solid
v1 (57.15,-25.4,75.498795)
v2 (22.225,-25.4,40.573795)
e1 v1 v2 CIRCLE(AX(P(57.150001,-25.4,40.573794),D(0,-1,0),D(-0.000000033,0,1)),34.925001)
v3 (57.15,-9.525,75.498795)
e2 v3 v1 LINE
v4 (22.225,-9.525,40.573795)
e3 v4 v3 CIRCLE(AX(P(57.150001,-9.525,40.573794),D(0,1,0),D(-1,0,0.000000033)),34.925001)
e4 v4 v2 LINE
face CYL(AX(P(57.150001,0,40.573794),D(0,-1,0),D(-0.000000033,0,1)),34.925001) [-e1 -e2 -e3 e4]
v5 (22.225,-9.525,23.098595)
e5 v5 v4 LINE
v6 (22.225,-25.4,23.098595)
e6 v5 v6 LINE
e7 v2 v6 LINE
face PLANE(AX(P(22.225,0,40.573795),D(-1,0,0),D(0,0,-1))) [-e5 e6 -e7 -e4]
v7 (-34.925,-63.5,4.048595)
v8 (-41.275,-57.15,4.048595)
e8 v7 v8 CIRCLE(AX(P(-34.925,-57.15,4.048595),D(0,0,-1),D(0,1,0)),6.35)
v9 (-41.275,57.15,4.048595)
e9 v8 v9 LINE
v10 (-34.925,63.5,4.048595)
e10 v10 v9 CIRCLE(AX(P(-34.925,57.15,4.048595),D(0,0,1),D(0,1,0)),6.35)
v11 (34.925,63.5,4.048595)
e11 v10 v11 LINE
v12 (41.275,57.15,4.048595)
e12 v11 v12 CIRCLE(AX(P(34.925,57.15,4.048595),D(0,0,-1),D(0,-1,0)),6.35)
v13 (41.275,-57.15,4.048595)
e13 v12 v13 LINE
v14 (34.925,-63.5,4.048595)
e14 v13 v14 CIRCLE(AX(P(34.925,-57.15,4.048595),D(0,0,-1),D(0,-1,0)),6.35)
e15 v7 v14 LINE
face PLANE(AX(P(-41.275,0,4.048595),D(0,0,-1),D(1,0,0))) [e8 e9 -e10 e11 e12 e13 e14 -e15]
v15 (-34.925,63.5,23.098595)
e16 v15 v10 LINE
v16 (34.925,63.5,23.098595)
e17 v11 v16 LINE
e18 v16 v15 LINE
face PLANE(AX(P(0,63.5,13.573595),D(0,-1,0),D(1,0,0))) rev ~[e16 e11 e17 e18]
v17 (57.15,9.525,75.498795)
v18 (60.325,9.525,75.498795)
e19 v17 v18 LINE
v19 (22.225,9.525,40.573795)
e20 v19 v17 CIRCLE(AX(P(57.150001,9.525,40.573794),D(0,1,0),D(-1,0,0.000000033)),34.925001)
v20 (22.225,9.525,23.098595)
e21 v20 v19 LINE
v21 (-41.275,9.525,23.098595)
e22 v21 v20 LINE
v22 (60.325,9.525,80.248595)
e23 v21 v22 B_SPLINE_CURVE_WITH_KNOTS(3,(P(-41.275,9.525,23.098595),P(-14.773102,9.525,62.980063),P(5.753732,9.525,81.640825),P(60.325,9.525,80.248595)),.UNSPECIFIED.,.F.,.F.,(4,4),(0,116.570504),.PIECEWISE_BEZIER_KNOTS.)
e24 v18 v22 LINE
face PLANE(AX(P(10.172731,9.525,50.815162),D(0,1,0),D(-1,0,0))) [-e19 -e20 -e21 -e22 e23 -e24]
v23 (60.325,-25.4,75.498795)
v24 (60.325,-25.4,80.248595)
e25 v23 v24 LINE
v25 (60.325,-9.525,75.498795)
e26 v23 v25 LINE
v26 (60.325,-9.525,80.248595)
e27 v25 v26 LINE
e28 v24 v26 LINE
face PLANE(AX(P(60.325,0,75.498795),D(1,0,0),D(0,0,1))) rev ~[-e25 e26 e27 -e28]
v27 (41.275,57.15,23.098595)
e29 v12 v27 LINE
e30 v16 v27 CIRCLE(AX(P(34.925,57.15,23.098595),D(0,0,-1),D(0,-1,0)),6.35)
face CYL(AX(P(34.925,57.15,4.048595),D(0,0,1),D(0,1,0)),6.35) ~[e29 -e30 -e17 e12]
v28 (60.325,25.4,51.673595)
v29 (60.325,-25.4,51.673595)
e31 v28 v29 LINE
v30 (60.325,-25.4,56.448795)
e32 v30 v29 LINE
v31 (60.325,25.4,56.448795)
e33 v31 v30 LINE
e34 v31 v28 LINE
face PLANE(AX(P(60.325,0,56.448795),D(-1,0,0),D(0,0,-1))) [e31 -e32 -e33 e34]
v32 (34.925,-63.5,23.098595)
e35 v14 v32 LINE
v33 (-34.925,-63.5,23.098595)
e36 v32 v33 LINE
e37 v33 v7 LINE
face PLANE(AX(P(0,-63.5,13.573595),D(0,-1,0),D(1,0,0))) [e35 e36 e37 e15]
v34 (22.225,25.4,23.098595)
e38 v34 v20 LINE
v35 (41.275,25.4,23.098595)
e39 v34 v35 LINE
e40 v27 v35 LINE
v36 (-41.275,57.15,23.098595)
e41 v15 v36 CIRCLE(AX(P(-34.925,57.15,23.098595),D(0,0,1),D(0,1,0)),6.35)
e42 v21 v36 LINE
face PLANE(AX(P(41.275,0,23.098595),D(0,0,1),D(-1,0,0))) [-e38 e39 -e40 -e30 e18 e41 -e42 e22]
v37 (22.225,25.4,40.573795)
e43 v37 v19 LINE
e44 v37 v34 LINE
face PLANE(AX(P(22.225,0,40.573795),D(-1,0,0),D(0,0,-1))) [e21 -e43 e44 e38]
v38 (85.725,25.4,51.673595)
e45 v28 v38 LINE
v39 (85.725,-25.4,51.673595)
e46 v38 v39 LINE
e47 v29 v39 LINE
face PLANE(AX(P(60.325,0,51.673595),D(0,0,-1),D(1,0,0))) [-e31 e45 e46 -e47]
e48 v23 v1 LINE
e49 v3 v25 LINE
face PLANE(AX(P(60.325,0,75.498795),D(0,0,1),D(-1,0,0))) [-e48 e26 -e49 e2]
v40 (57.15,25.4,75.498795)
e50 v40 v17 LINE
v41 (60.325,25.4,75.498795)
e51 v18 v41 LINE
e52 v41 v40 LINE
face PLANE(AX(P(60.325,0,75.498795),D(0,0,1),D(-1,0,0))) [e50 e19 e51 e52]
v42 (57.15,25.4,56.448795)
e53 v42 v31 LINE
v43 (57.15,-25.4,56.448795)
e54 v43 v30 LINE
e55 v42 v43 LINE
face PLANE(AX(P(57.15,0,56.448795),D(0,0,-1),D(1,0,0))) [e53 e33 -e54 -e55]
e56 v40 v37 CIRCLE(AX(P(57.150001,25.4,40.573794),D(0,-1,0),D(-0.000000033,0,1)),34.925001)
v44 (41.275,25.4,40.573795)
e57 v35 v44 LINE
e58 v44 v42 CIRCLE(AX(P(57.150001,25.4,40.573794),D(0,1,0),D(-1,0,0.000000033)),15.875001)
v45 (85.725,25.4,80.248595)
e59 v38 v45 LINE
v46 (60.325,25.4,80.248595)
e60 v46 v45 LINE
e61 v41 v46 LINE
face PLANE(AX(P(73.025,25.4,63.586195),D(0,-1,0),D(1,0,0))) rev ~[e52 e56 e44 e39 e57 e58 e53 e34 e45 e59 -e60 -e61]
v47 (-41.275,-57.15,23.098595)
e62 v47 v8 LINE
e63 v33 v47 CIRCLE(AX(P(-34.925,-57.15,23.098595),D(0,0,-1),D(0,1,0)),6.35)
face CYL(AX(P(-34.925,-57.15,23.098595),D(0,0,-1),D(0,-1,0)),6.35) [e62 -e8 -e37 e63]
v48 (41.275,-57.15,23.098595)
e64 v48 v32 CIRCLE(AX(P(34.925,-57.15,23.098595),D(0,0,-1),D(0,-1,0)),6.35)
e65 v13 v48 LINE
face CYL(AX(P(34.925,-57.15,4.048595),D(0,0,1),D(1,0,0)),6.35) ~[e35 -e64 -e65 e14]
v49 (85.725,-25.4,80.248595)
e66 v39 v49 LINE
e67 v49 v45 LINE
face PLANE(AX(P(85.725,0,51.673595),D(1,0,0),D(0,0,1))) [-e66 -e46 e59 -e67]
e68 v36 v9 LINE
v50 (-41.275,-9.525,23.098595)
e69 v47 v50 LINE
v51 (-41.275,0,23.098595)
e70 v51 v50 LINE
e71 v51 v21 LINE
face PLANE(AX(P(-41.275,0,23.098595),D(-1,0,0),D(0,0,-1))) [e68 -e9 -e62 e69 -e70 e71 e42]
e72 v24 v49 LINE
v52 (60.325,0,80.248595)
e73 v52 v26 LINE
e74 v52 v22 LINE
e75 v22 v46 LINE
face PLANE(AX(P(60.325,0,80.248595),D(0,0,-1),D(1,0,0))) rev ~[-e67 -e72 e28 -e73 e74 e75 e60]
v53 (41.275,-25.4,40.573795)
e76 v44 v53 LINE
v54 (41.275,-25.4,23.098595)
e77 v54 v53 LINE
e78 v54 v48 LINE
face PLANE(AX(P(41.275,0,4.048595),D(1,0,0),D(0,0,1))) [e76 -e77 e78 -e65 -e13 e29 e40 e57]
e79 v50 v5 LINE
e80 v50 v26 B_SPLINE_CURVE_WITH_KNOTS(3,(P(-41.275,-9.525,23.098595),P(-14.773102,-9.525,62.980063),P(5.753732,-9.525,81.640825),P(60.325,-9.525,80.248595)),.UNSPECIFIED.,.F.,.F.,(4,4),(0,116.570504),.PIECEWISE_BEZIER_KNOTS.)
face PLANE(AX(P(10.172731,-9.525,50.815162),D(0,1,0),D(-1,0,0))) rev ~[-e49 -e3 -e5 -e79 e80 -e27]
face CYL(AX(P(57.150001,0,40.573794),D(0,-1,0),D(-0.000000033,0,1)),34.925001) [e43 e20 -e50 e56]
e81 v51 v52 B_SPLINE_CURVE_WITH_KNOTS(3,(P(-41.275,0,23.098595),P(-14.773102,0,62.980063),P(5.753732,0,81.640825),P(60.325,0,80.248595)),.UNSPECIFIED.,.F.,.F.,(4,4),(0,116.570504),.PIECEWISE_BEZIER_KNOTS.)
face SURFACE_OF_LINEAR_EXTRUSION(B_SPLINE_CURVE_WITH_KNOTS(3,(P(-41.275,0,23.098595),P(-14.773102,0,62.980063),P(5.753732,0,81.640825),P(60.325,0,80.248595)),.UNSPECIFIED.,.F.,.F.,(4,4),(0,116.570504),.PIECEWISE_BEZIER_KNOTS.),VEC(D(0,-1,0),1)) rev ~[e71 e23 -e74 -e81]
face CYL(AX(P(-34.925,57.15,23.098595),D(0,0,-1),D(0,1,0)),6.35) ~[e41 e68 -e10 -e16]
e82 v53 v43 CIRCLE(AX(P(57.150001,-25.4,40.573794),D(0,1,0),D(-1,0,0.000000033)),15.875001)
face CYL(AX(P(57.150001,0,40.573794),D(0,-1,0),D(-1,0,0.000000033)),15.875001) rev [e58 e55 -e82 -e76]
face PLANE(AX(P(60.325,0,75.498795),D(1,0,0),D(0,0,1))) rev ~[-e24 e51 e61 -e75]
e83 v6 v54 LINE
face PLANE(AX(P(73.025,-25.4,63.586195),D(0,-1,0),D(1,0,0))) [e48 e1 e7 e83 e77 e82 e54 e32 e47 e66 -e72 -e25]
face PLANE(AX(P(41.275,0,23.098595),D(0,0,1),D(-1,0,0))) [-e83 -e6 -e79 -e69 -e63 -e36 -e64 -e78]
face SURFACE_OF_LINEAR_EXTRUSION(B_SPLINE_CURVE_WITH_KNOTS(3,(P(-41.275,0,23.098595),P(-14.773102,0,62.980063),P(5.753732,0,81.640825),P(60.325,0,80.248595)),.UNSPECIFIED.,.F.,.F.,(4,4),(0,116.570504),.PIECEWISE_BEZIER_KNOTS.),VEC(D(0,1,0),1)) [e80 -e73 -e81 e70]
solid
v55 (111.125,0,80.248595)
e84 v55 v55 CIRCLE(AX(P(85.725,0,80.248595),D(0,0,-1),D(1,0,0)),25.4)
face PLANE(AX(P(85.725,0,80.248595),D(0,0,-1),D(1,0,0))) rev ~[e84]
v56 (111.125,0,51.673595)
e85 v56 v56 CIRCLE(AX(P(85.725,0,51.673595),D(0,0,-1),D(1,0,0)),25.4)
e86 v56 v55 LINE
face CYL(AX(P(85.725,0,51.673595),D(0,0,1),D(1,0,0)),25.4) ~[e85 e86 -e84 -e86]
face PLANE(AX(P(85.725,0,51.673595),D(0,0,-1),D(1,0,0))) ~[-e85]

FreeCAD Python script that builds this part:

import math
import FreeCAD as App
import Part
import Sketcher
Q = App.Units.Quantity


def edges_at(feature, points):
    """Names of the edges that pass closest to the given points."""
    edges = feature.Shape.Edges
    near = lambda p: min(range(len(edges)), key=lambda i: edges[i].distToShape(Part.Vertex(*p))[0])
    return sorted({f"Edge{near(p) + 1}" for p in points})


def add_polygon(sketch, points):
    """Adds a closed chain of lines whose ends are joined by coincident constraints."""
    first, n = sketch.GeometryCount, len(points)
    for a, b in zip(points, points[1:] + points[:1]):
        sketch.addGeometry(Part.LineSegment(App.Vector(*a, 0), App.Vector(*b, 0)), False)
    for i in range(n):
        sketch.addConstraint(Sketcher.Constraint("Coincident", first + i, 2, first + (i + 1) % n, 1))

doc = App.newDocument("Part")
params = doc.addObject("Spreadsheet::Sheet", "Params")
for row, (alias, value) in enumerate([
    ("sketch1_width", "3.25 in"),
    ("sketch1_height", "0.75 in"),
    ("pad1_length", "5 in"),
    ("sketch2_width", "1 in"),
    ("sketch2_radius", "1.375 in"),
    ("sketch2_radius2", "0.625 in"),
    ("sketch2_width2", "0.125 in"),
    ("sketch2_height", "0.688 in"),
    ("pad2_length", "2 in"),
    ("sketch3_width", "2.5 in"),
    ("sketch3_radius", "1.375 in"),
    ("sketch3_height", "0.688 in"),
    ("pad3_length", "0.75 in"),
    ("fillet_radius", "0.25 in"),
    ("sketch4_width", "1 in"),
    ("sketch4_height", "1.125 in"),
    ("revolution_angle", "360 deg"),
], start=1):
    params.set(f"A{row}", alias)
    params.set(f"B{row}", "=" + value)
    params.setAlias(f"B{row}", alias)

body = doc.addObject("PartDesign::Body", "Body")

sketch1 = body.newObject("Sketcher::SketchObject", "Sketch")
sketch1.AttachmentSupport = (doc.getObject("XZ_Plane"), [""])
sketch1.MapMode = "FlatFace"
add_polygon(sketch1, [(-41.275, 4.048595), (41.275, 4.048595), (41.275, 23.098595), (-41.275, 23.098595)])
sketch1.addConstraint([
    Sketcher.Constraint("Horizontal", 0),
    Sketcher.Constraint("Vertical", 1),
    Sketcher.Constraint("Horizontal", 2),
    Sketcher.Constraint("Vertical", 3),
    Sketcher.Constraint("DistanceX", 0, 1, 0, 2, Q("3.25 in")),
    Sketcher.Constraint("DistanceY", 1, 1, 1, 2, Q("0.75 in")),
    Sketcher.Constraint("DistanceX", -1, 1, 0, 2, Q("1.625 in")),
    Sketcher.Constraint("DistanceY", -1, 1, 0, 2, Q("4.048595 mm")),
])
sketch1.setExpression("Constraints[8]", "Params.sketch1_width")
sketch1.setExpression("Constraints[9]", "Params.sketch1_height")
pad1 = body.newObject("PartDesign::Pad", "Pad")
pad1.Profile = sketch1
pad1.setExpression("Length", "Params.pad1_length")
pad1.Midplane = True

sketch2 = body.newObject("Sketcher::SketchObject", "Sketch001")
sketch2.AttachmentSupport = (doc.getObject("XZ_Plane"), [""])
sketch2.MapMode = "FlatFace"
sketch2.addGeometry([
    Part.LineSegment(App.Vector(60.325, 75.498795, 0), App.Vector(57.15, 75.498795, 0)),
    Part.ArcOfCircle(Part.Circle(App.Vector(57.150001, 40.573794, 0), App.Vector(0, 0, 1), 34.925001), math.radians(90.000002), math.radians(179.999998)),
    Part.LineSegment(App.Vector(22.225, 40.573795, 0), App.Vector(22.225, 23.098595, 0)),
    Part.LineSegment(App.Vector(22.225, 23.098595, 0), App.Vector(41.275, 23.098595, 0)),
    Part.LineSegment(App.Vector(41.275, 23.098595, 0), App.Vector(41.275, 40.573795, 0)),
    Part.ArcOfCircle(Part.Circle(App.Vector(57.150001, 40.573794, 0), App.Vector(0, 0, 1), 15.875001), math.radians(90.000002), math.radians(179.999998)),
    Part.LineSegment(App.Vector(57.15, 56.448795, 0), App.Vector(60.325, 56.448795, 0)),
    Part.LineSegment(App.Vector(60.325, 56.448795, 0), App.Vector(60.325, 51.673595, 0)),
    Part.LineSegment(App.Vector(60.325, 51.673595, 0), App.Vector(85.725, 51.673595, 0)),
    Part.LineSegment(App.Vector(85.725, 51.673595, 0), App.Vector(85.725, 80.248595, 0)),
    Part.LineSegment(App.Vector(85.725, 80.248595, 0), App.Vector(60.325, 80.248595, 0)),
    Part.LineSegment(App.Vector(60.325, 80.248595, 0), App.Vector(60.325, 75.498795, 0)),
], False)
sketch2.addConstraint([
    Sketcher.Constraint("Tangent", 0, 2, 1, 1),
    Sketcher.Constraint("Tangent", 1, 2, 2, 1),
    Sketcher.Constraint("Coincident", 2, 2, 3, 1),
    Sketcher.Constraint("Coincident", 3, 2, 4, 1),
    Sketcher.Constraint("Tangent", 4, 2, 5, 2),
    Sketcher.Constraint("Tangent", 5, 1, 6, 1),
    Sketcher.Constraint("Coincident", 6, 2, 7, 1),
    Sketcher.Constraint("Coincident", 7, 2, 8, 1),
    Sketcher.Constraint("Coincident", 8, 2, 9, 1),
    Sketcher.Constraint("Coincident", 9, 2, 10, 1),
    Sketcher.Constraint("Coincident", 10, 2, 11, 1),
    Sketcher.Constraint("Coincident", 11, 2, 0, 1),
    Sketcher.Constraint("Horizontal", 0),
    Sketcher.Constraint("Vertical", 2),
    Sketcher.Constraint("Horizontal", 3),
    Sketcher.Constraint("Vertical", 4),
    Sketcher.Constraint("Horizontal", 6),
    Sketcher.Constraint("Vertical", 7),
    Sketcher.Constraint("Horizontal", 8),
    Sketcher.Constraint("Vertical", 9),
    Sketcher.Constraint("Horizontal", 10),
    Sketcher.Constraint("Vertical", 11),
    Sketcher.Constraint("Coincident", 5, 3, 1, 3),
    Sketcher.Constraint("Vertical", 7, 2, 10, 2),
    Sketcher.Constraint("DistanceX", 8, 1, 8, 2, Q("1 in")),
    Sketcher.Constraint("Radius", 1, Q("1.375 in")),
    Sketcher.Constraint("Radius", 5, Q("0.625 in")),
    Sketcher.Constraint("DistanceX", 0, 2, 0, 1, Q("0.125 in")),
    Sketcher.Constraint("DistanceY", 2, 2, 2, 1, Q("0.688 in")),
    Sketcher.Constraint("DistanceY", 7, 2, 7, 1, Q("0.188 in")),
    Sketcher.Constraint("DistanceY", 9, 1, 9, 2, Q("1.125 in")),
    Sketcher.Constraint("DistanceX", -1, 1, 1, 3, Q("2.25 in")),
    Sketcher.Constraint("DistanceY", -1, 1, 1, 3, Q("40.573794 mm")),
])
sketch2.setExpression("Constraints[24]", "Params.sketch2_width")
sketch2.setExpression("Constraints[25]", "Params.sketch2_radius")
sketch2.setExpression("Constraints[26]", "Params.sketch2_radius2")
sketch2.setExpression("Constraints[27]", "Params.sketch2_width2")
sketch2.setExpression("Constraints[28]", "Params.sketch2_height")
pad2 = body.newObject("PartDesign::Pad", "Pad001")
pad2.Profile = sketch2
pad2.setExpression("Length", "Params.pad2_length")
pad2.Midplane = True

sketch3 = body.newObject("Sketcher::SketchObject", "Sketch002")
sketch3.AttachmentSupport = (doc.getObject("XZ_Plane"), [""])
sketch3.MapMode = "FlatFace"
sketch3.addGeometry([
    Part.BSplineCurve([App.Vector(-41.275, 23.098595, 0), App.Vector(-14.773102, 62.980063, 0), App.Vector(5.753732, 81.640825, 0), App.Vector(60.325, 80.248595, 0)], [4, 4], [0, 116.570504], False, 3, [1, 1, 1, 1], False),
    Part.LineSegment(App.Vector(-41.275, 23.098595, 0), App.Vector(22.225, 23.098595, 0)),
    Part.LineSegment(App.Vector(22.225, 23.098595, 0), App.Vector(22.225, 40.573795, 0)),
    Part.ArcOfCircle(Part.Circle(App.Vector(57.150001, 40.573794, 0), App.Vector(0, 0, 1), 34.925001), math.radians(90.000002), math.radians(179.999998)),
    Part.LineSegment(App.Vector(57.15, 75.498795, 0), App.Vector(60.325, 75.498795, 0)),
    Part.LineSegment(App.Vector(60.325, 75.498795, 0), App.Vector(60.325, 80.248595, 0)),
], False)
sketch3.addConstraint([
    Sketcher.Constraint("Block", 0),
    Sketcher.Constraint("Coincident", 0, 1, 1, 1),
    Sketcher.Constraint("Coincident", 1, 2, 2, 1),
    Sketcher.Constraint("Tangent", 2, 2, 3, 2),
    Sketcher.Constraint("Tangent", 3, 1, 4, 1),
    Sketcher.Constraint("Coincident", 4, 2, 5, 1),
    Sketcher.Constraint("Coincident", 5, 2, 0, 2),
    Sketcher.Constraint("Horizontal", 1),
    Sketcher.Constraint("Vertical", 2),
    Sketcher.Constraint("Horizontal", 4),
    Sketcher.Constraint("Vertical", 5),
    Sketcher.Constraint("DistanceX", 1, 1, 1, 2, Q("2.5 in")),
    Sketcher.Constraint("Radius", 3, Q("1.375 in")),
    Sketcher.Constraint("DistanceY", 2, 1, 2, 2, Q("0.688 in")),
])
sketch3.setExpression("Constraints[11]", "Params.sketch3_width")
sketch3.setExpression("Constraints[12]", "Params.sketch3_radius")
sketch3.setExpression("Constraints[13]", "Params.sketch3_height")
pad3 = body.newObject("PartDesign::Pad", "Pad002")
pad3.Profile = sketch3
pad3.setExpression("Length", "Params.pad3_length")
pad3.Midplane = True
doc.recompute()

fillet = body.newObject("PartDesign::Fillet", "Fillet")
fillet.Base = (pad3, edges_at(pad3, [
    (41.275, 63.5, 13.574),
    (-41.275, 63.5, 13.574),
    (41.275, -63.5, 13.574),
    (-41.275, -63.5, 13.574),
]))
fillet.setExpression("Radius", "Params.fillet_radius")
body2 = doc.addObject("PartDesign::Body", "Body001")

sketch4 = body2.newObject("Sketcher::SketchObject", "Sketch003")
sketch4.AttachmentSupport = (doc.getObject("XZ_Plane001"), [""])
sketch4.MapMode = "FlatFace"
add_polygon(sketch4, [(111.125, 80.248595), (85.725, 80.248595), (85.725, 51.673595), (111.125, 51.673595)])
sketch4.addGeometry(Part.LineSegment(App.Vector(85.725, 80.248595, 0), App.Vector(85.725, 51.673595, 0)), True)
sketch4.addConstraint([
    Sketcher.Constraint("Horizontal", 0),
    Sketcher.Constraint("Vertical", 1),
    Sketcher.Constraint("Horizontal", 2),
    Sketcher.Constraint("Vertical", 3),
    Sketcher.Constraint("Vertical", 4),
    Sketcher.Constraint("Coincident", 4, 1, 0, 2),
    Sketcher.Constraint("Horizontal", 2, 2, 4, 2),
    Sketcher.Constraint("DistanceX", 0, 2, 0, 1, Q("1 in")),
    Sketcher.Constraint("DistanceY", 1, 2, 1, 1, Q("1.125 in")),
    Sketcher.Constraint("DistanceX", -1, 1, 0, 2, Q("3.375 in")),
    Sketcher.Constraint("DistanceY", -1, 1, 0, 2, Q("80.248595 mm")),
])
sketch4.setExpression("Constraints[11]", "Params.sketch4_width")
sketch4.setExpression("Constraints[12]", "Params.sketch4_height")
revolution = body2.newObject("PartDesign::Revolution", "Revolution")
revolution.Profile = sketch4
revolution.ReferenceAxis = (sketch4, ["Axis0"])
revolution.setExpression("Angle", "Params.revolution_angle")

doc.recompute()
